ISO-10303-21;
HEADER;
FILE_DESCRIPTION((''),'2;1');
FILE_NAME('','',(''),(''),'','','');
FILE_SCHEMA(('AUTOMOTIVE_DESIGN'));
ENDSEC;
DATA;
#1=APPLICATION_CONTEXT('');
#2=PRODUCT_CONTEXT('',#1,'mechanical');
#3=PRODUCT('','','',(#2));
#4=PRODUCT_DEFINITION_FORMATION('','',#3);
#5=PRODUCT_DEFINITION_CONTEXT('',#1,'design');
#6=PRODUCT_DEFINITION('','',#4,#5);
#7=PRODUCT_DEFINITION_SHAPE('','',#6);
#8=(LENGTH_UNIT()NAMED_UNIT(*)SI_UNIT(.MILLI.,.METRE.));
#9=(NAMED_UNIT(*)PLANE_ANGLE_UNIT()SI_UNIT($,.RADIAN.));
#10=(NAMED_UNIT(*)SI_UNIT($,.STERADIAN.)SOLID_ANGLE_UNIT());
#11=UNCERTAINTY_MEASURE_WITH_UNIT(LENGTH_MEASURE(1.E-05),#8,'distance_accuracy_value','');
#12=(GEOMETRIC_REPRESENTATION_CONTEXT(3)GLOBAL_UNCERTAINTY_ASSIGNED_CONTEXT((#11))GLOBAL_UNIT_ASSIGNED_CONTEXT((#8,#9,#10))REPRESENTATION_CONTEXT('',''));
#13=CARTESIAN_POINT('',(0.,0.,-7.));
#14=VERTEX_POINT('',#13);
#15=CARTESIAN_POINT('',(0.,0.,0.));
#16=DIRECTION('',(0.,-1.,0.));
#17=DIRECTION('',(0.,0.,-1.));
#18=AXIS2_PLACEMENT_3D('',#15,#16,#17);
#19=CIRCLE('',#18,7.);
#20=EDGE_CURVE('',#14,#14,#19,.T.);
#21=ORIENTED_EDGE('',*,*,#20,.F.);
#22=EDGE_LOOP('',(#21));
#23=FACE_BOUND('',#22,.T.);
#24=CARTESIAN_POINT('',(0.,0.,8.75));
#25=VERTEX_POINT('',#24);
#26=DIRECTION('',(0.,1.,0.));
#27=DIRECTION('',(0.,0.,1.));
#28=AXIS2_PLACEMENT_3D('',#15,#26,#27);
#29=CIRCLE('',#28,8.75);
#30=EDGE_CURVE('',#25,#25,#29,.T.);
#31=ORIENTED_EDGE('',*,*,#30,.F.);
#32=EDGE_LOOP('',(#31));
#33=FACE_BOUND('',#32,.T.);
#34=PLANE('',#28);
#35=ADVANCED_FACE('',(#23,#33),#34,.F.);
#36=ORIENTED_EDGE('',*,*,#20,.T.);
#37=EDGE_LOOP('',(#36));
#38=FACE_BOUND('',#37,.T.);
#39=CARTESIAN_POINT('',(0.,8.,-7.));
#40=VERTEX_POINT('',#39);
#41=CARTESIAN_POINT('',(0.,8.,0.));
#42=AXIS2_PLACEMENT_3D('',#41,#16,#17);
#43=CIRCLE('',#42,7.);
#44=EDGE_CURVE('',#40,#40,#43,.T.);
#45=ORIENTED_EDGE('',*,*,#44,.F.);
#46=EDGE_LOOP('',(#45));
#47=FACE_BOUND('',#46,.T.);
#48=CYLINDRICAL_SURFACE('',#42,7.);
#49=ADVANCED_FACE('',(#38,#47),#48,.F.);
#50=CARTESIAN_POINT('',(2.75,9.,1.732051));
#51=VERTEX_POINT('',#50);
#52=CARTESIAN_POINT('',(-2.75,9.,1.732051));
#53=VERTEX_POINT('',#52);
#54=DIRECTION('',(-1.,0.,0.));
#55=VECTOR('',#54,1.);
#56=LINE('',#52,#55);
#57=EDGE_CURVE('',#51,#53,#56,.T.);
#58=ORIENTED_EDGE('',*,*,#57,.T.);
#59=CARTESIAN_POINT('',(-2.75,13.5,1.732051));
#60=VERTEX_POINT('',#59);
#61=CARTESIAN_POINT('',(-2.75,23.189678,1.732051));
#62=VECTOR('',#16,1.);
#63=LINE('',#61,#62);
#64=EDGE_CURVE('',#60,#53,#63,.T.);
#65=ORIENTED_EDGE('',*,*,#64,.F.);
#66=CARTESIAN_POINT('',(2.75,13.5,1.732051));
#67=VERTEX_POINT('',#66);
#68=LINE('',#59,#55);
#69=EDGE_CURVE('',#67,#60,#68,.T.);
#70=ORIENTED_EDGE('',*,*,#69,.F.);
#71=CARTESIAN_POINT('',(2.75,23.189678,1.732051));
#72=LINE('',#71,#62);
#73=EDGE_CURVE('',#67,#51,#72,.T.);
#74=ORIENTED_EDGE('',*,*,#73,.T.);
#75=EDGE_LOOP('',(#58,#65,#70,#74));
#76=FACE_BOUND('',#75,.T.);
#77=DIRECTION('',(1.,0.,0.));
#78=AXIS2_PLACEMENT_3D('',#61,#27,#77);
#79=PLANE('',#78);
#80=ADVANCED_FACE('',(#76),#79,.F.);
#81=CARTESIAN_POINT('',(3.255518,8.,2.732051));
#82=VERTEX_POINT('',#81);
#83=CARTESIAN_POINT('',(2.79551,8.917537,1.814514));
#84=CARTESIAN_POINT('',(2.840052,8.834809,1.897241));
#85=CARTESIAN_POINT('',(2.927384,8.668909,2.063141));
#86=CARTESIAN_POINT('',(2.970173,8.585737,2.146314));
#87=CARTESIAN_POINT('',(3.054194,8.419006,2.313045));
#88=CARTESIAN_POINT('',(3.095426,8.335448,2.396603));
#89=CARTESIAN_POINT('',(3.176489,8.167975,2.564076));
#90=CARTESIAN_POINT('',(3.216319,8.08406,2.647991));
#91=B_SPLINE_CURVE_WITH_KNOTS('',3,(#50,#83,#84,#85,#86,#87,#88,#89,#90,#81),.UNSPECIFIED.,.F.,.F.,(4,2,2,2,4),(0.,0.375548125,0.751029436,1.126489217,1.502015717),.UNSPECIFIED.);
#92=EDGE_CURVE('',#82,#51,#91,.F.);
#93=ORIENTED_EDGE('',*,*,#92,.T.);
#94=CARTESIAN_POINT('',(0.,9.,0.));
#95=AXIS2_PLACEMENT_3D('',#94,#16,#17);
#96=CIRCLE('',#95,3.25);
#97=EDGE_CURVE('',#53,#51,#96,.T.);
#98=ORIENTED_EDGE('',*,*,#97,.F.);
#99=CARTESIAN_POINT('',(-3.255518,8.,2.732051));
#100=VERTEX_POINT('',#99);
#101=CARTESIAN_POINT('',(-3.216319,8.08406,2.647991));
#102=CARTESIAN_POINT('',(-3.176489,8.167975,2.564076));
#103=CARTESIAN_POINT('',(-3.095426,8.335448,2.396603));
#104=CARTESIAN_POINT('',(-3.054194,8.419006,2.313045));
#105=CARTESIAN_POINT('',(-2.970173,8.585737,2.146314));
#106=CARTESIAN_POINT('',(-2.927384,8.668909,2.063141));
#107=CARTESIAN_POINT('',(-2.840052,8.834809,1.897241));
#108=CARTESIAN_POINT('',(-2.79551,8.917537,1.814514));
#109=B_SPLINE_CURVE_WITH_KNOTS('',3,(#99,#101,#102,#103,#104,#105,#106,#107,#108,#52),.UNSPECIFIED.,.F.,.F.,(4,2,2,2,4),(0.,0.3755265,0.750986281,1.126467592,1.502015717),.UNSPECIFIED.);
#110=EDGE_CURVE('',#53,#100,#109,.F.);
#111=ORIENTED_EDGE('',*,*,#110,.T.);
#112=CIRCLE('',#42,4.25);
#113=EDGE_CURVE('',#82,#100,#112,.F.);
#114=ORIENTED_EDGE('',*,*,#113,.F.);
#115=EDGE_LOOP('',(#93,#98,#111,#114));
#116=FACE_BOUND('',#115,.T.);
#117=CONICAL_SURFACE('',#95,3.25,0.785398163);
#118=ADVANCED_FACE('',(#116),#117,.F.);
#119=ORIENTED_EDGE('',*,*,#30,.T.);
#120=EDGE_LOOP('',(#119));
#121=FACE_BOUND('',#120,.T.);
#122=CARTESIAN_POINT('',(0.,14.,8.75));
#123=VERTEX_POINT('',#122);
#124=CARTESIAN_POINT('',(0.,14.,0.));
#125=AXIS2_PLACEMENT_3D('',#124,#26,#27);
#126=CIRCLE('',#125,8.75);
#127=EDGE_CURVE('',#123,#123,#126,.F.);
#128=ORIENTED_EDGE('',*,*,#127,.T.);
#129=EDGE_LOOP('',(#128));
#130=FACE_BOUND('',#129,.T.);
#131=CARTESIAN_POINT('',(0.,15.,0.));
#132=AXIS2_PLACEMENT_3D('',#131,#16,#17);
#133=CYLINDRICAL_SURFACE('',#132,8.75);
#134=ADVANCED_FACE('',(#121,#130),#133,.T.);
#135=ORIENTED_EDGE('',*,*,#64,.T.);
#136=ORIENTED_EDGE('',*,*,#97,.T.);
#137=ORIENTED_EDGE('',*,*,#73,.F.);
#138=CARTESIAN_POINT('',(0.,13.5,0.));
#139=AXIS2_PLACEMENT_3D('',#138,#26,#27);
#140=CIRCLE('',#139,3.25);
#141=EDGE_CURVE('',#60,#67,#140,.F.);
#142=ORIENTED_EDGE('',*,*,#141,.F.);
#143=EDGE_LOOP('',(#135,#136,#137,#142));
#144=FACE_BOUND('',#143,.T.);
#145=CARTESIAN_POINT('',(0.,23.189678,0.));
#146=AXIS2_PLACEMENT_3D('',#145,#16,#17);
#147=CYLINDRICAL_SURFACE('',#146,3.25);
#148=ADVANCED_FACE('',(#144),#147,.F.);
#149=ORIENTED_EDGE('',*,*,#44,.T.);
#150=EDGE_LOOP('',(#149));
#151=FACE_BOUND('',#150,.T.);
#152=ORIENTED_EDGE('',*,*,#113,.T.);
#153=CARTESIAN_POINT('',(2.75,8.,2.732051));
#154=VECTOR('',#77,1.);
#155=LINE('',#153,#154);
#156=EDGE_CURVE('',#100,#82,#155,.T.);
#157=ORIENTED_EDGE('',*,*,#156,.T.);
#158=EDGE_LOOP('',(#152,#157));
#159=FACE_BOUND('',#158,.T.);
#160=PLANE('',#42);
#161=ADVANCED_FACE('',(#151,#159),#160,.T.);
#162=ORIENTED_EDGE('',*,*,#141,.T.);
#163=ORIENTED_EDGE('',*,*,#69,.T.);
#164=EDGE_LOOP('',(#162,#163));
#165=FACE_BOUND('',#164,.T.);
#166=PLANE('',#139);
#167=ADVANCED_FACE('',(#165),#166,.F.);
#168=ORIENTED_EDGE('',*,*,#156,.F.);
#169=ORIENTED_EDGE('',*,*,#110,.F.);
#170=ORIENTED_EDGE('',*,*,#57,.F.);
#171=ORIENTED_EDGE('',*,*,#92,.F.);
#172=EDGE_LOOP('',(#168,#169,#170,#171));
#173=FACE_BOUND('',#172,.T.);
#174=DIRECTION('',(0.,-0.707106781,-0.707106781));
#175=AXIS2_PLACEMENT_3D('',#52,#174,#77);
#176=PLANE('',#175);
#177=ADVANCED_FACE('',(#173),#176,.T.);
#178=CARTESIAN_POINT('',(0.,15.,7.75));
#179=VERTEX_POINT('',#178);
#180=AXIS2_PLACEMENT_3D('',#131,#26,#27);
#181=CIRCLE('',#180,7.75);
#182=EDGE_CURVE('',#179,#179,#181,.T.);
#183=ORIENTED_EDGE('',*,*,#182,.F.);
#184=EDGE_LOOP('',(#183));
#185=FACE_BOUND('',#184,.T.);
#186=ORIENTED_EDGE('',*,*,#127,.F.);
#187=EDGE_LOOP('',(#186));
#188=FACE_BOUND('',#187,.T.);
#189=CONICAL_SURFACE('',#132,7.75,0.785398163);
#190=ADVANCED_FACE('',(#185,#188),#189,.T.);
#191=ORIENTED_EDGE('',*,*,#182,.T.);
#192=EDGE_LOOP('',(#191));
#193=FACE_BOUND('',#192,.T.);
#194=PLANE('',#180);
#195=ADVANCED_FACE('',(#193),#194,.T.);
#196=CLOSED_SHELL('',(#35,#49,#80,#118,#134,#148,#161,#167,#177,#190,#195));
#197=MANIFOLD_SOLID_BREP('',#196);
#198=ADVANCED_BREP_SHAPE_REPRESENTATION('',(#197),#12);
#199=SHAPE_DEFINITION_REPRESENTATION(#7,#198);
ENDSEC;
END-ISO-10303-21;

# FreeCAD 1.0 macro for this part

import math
import FreeCAD as App
import Part
import Sketcher
Q = App.Units.Quantity


def edges_at(feature, points):
    """Names of the edges that pass closest to the given points."""
    edges = feature.Shape.Edges
    near = lambda p: min(range(len(edges)), key=lambda i: edges[i].distToShape(Part.Vertex(*p))[0])
    return sorted({f"Edge{near(p) + 1}" for p in points})

doc = App.newDocument("Part")
body = doc.addObject("PartDesign::Body", "Body")

# Sketch on XZ plane
sketch1 = body.newObject("Sketcher::SketchObject", "Sketch")
sketch1.AttachmentSupport = (doc.getObject("XZ_Plane"), [""])
sketch1.MapMode = "FlatFace"
sketch1.addGeometry(Part.Circle(App.Vector(0, 0, 0), App.Vector(0, 0, 1), 9), False)
sketch1.addConstraint([
    Sketcher.Constraint("Coincident", 0, 3, -1, 1),
    Sketcher.Constraint("Diameter", 0, Q("17.5 mm")),
])
pad1 = body.newObject("PartDesign::Pad", "Pad")
pad1.Profile = sketch1
pad1.Length = 15
pad1.Reversed = True

# Sketch on XZ plane
sketch2 = body.newObject("Sketcher::SketchObject", "Sketch001")
sketch2.AttachmentSupport = (doc.getObject("XZ_Plane"), [""])
sketch2.MapMode = "FlatFace"
sketch2.addGeometry(Part.Circle(App.Vector(0, 0, 0), App.Vector(0, 0, 1), 7), False)
sketch2.addConstraint([
    Sketcher.Constraint("Coincident", 0, 3, -1, 1),
    Sketcher.Constraint("Diameter", 0, Q("14 mm")),
])
pocket1 = body.newObject("PartDesign::Pocket", "Pocket")
pocket1.Profile = sketch2
pocket1.Length = 8

# Sketch on XZ plane
sketch3 = body.newObject("Sketcher::SketchObject", "Sketch002")
sketch3.AttachmentSupport = (doc.getObject("XZ_Plane"), [""])
sketch3.MapMode = "FlatFace"
sketch3.AttachmentOffset = App.Placement(App.Vector(0, 0, -8), App.Rotation())
sketch3.addGeometry([
    Part.LineSegment(App.Vector(2.8, 1.7, 0), App.Vector(-2.8, 1.7, 0)),
    Part.ArcOfCircle(Part.Circle(App.Vector(0, 0, 0), App.Vector(0, 0, 1), 3.2), math.radians(148), math.radians(392)),
], False)
sketch3.addConstraint([
    Sketcher.Constraint("Coincident", 0, 1, 1, 2),
    Sketcher.Constraint("Coincident", 1, 1, 0, 2),
    Sketcher.Constraint("Horizontal", 0),
    Sketcher.Constraint("Coincident", 1, 3, -1, 1),
    Sketcher.Constraint("Radius", 1, Q("3.25 mm")),
    Sketcher.Constraint("DistanceX", 0, 2, 0, 1, Q("5.5 mm")),
])
pocket2 = body.newObject("PartDesign::Pocket", "Pocket001")
pocket2.Profile = sketch3
pocket2.Length = 5.5
doc.recompute()

chamfer = body.newObject("PartDesign::Chamfer", "Chamfer")
chamfer.Base = (pocket2, edges_at(pocket2, [(0, 15, -8.75)]))
chamfer.Size = 1
doc.recompute()

chamfer2 = body.newObject("PartDesign::Chamfer", "Chamfer001")
chamfer2.Base = (chamfer, edges_at(chamfer, [(0, 8, -3.25), (0, 8, 1.732)]))
chamfer2.Size = 1

doc.recompute()
